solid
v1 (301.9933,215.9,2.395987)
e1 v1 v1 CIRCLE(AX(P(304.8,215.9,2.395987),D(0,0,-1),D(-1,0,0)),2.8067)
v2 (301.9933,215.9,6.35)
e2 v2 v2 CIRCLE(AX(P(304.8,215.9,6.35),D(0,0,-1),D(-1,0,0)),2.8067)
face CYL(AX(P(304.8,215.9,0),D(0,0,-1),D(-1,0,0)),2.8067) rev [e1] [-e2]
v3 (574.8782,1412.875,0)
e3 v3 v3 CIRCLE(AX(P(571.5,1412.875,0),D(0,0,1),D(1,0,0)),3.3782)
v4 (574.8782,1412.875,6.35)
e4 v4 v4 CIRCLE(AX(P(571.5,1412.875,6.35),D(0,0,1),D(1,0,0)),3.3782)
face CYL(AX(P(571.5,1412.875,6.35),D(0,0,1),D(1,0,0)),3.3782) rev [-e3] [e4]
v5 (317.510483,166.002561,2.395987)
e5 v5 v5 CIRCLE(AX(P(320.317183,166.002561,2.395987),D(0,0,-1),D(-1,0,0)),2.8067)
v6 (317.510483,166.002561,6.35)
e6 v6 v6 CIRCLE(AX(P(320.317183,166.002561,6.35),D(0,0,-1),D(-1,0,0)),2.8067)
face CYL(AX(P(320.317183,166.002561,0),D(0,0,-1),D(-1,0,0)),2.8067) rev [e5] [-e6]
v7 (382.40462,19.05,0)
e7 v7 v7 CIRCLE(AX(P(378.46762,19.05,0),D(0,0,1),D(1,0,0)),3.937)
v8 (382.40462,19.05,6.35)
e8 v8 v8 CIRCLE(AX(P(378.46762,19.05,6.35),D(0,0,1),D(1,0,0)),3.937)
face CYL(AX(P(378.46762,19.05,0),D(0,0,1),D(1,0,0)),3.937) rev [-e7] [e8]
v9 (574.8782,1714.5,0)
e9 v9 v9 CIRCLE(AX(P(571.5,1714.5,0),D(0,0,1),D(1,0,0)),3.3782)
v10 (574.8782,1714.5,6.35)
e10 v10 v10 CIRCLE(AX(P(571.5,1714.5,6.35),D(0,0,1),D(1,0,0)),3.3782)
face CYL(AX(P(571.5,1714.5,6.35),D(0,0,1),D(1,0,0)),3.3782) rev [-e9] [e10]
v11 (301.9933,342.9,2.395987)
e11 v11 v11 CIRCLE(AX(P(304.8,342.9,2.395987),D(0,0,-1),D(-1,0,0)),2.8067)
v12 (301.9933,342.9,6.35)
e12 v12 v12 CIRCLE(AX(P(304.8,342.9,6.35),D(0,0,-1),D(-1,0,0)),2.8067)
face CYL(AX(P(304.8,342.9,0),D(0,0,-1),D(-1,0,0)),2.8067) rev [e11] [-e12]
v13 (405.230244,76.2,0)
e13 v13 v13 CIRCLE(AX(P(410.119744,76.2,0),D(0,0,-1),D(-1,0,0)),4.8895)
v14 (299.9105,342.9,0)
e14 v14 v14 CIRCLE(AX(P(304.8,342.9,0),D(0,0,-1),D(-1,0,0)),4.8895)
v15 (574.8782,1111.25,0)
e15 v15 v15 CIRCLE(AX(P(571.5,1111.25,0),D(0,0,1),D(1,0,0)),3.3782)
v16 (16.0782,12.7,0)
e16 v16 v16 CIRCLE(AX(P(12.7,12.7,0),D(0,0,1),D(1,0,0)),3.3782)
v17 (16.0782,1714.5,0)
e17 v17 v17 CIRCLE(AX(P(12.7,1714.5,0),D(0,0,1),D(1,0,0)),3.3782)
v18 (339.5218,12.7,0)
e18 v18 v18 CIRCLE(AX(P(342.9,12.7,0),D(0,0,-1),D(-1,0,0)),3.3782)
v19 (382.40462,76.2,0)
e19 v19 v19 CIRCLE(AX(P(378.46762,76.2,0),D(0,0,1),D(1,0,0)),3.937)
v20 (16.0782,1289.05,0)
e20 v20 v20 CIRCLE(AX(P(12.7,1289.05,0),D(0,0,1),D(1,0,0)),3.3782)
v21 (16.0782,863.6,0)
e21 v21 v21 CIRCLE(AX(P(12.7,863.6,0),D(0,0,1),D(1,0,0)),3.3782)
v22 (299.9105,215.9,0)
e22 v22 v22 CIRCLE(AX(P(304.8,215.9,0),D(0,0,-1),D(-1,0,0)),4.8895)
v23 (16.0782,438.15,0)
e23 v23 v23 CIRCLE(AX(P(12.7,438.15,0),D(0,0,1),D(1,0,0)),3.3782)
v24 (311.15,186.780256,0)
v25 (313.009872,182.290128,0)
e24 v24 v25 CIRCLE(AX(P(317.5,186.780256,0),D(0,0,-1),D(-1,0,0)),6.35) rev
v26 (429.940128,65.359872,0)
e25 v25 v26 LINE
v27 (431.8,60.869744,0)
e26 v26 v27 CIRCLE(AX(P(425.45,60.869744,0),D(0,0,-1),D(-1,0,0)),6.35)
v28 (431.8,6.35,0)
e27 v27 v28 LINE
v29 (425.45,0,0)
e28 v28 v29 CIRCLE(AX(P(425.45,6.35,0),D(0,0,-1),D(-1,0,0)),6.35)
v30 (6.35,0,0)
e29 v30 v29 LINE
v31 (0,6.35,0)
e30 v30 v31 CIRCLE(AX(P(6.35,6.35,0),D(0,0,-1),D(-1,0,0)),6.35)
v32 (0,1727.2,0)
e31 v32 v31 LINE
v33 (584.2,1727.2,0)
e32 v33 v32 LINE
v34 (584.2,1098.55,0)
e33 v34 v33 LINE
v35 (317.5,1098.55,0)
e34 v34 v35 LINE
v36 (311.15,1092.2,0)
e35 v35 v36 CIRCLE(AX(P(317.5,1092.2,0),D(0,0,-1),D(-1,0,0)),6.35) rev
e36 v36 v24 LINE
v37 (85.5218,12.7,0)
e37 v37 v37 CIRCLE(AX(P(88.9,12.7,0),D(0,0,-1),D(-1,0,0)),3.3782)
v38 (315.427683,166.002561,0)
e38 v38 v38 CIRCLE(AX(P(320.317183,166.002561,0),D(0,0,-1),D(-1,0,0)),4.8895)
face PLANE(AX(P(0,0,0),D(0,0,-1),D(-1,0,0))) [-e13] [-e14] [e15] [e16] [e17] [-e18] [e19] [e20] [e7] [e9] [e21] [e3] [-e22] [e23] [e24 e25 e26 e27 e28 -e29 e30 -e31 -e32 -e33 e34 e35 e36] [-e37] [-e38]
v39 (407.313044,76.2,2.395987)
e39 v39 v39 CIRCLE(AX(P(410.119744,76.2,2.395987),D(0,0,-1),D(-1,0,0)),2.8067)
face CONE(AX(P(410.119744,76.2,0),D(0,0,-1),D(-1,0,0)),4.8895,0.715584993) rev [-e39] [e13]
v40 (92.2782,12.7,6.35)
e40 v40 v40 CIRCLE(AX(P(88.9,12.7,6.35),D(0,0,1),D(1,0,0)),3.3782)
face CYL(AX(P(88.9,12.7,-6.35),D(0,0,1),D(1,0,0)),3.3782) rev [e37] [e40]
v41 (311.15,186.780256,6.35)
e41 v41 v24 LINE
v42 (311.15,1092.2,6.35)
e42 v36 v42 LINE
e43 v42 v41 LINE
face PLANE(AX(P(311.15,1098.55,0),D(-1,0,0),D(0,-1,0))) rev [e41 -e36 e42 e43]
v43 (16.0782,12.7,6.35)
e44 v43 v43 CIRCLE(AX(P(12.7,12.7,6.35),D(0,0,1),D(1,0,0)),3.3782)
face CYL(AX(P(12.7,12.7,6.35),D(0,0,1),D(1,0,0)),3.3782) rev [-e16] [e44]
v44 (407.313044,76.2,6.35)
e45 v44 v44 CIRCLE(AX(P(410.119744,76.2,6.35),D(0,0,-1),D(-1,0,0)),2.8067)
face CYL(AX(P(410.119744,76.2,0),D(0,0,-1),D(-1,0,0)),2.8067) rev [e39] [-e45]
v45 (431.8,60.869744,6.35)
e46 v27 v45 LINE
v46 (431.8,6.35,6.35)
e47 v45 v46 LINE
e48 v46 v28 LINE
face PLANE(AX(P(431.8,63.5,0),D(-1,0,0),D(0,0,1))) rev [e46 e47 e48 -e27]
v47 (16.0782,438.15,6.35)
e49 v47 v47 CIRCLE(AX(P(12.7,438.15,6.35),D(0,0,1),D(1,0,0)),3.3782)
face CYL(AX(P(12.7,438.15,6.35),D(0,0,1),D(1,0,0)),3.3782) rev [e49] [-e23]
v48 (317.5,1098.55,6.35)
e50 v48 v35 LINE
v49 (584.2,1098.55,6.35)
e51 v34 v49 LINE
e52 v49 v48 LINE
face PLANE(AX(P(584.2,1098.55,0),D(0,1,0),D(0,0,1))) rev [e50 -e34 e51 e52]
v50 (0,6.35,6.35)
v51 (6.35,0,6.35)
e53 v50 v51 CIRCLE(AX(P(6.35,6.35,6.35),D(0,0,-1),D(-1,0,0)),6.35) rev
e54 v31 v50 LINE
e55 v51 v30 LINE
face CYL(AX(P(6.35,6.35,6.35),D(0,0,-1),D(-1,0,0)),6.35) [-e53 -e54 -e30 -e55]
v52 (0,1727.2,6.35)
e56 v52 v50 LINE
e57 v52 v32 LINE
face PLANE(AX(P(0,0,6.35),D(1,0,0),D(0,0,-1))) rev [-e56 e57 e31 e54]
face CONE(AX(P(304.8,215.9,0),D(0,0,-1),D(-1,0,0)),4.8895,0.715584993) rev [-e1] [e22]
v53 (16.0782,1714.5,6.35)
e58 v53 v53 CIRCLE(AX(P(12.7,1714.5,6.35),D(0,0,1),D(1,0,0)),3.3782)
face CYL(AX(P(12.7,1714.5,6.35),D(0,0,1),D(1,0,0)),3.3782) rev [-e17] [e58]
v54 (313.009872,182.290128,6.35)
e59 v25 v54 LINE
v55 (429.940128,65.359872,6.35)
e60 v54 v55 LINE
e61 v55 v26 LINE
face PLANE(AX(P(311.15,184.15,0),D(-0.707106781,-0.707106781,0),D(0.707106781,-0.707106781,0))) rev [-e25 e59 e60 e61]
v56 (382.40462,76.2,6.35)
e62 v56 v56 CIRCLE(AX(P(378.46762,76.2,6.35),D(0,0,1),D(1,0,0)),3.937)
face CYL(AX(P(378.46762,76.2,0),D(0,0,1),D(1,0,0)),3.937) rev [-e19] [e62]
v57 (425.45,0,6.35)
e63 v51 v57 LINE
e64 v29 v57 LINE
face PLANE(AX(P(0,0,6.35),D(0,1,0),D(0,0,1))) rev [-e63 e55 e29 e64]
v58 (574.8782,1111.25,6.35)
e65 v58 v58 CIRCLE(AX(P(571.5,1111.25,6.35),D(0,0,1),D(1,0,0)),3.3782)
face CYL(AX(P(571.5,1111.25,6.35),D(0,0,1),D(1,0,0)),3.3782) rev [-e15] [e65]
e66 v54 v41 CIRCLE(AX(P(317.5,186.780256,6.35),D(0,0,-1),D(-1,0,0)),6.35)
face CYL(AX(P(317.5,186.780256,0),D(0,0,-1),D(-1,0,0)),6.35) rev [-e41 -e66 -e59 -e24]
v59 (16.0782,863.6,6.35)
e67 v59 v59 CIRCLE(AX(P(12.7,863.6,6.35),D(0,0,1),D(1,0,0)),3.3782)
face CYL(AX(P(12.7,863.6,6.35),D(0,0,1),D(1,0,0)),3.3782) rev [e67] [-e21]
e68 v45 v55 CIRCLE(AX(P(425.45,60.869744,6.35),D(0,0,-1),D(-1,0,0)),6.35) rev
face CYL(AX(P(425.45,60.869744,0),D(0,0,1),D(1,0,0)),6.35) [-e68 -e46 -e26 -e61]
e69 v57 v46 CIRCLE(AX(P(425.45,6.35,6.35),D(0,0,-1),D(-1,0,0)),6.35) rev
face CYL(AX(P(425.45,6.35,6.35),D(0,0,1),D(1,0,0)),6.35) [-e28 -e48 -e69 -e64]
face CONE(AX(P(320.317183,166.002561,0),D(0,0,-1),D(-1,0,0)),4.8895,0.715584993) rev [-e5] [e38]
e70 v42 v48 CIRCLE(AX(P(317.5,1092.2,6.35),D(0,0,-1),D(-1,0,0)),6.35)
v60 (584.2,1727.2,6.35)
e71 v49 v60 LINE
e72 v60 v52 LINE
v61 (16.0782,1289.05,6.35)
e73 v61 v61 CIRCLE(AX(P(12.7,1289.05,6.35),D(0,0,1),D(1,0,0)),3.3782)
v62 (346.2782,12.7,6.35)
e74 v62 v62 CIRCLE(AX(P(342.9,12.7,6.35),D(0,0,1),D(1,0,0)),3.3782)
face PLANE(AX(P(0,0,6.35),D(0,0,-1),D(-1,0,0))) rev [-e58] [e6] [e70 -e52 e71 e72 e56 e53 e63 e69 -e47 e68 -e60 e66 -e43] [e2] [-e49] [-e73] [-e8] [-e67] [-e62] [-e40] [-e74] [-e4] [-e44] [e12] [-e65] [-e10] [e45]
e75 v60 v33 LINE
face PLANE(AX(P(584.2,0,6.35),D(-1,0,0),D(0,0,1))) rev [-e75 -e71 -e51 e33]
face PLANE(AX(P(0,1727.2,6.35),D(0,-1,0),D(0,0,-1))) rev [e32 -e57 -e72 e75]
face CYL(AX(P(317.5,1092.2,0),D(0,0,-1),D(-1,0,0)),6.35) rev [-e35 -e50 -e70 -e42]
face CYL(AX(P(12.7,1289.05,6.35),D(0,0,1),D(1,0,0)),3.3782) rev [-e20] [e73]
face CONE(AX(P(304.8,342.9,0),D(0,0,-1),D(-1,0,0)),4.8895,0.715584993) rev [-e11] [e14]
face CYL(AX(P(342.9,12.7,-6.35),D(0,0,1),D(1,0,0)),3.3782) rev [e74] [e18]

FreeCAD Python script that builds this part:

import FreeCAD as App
import Part
import Sketcher
from FreeCAD import Vector
Q = App.Units.Quantity


def edges_at(feature, points):
    """Names of the edges that pass closest to the given points."""
    edges = feature.Shape.Edges
    near = lambda p: min(range(len(edges)), key=lambda i: edges[i].distToShape(Part.Vertex(*p))[0])
    return sorted({f"Edge{near(p) + 1}" for p in points})


def add_polygon(sketch, points):
    """Adds a closed chain of lines whose ends are joined by coincident constraints."""
    first, n = sketch.GeometryCount, len(points)
    for a, b in zip(points, points[1:] + points[:1]):
        sketch.addGeometry(Part.LineSegment(App.Vector(*a, 0), App.Vector(*b, 0)), False)
    for i in range(n):
        sketch.addConstraint(Sketcher.Constraint("Coincident", first + i, 2, first + (i + 1) % n, 1))

doc = App.newDocument("Part")
body = doc.addObject("PartDesign::Body", "Body")

sketch1 = body.newObject("Sketcher::SketchObject", "Sketch")
sketch1.AttachmentSupport = (doc.getObject("XY_Plane"), [""])
sketch1.MapMode = "FlatFace"
add_polygon(sketch1, [(0, 1727.2), (0, 0), (584.2, 0), (584.2, 1727.2)])
sketch1.addConstraint(Sketcher.Constraint("Vertical", 0))
sketch1.addConstraint(Sketcher.Constraint("Horizontal", 1))
sketch1.addConstraint(Sketcher.Constraint("Vertical", 2))
sketch1.addConstraint(Sketcher.Constraint("Horizontal", 3))
sketch1.addConstraint(Sketcher.Constraint("Coincident", 0, 2, -1, 1))
sketch1.addConstraint(Sketcher.Constraint("DistanceX", 1, 1, 1, 2, Q("23 in")))
sketch1.addConstraint(Sketcher.Constraint("DistanceY", 0, 2, 0, 1, Q("68 in")))
pad1 = body.newObject("PartDesign::Pad", "Pad")
pad1.Profile = sketch1
pad1.Length = Q("0.25 in")

sketch2 = body.newObject("Sketcher::SketchObject", "Sketch001")
sketch2.AttachmentSupport = (doc.getObject("XY_Plane"), [""])
sketch2.MapMode = "FlatFace"
sketch2.AttachmentOffset = App.Placement(Vector(0, 0, 0.25 * 25.4), App.Rotation())
add_polygon(sketch2, [(584.2, 1098.55), (311.15, 1098.55), (311.15, 184.15), (431.8, 63.5), (431.8, 0), (584.2, 0)])
sketch2.addConstraint(Sketcher.Constraint("Horizontal", 0))
sketch2.addConstraint(Sketcher.Constraint("Vertical", 1))
sketch2.addConstraint(Sketcher.Constraint("Vertical", 3))
sketch2.addConstraint(Sketcher.Constraint("Horizontal", 4))
sketch2.addConstraint(Sketcher.Constraint("Vertical", 5))
sketch2.addConstraint(Sketcher.Constraint("PointOnObject", 3, 2, -1))
sketch2.addConstraint(Sketcher.Constraint("DistanceX", 4, 1, 4, 2, Q("6 in")))
sketch2.addConstraint(Sketcher.Constraint("DistanceY", 1, 2, 1, 1, Q("36 in")))
sketch2.addConstraint(Sketcher.Constraint("DistanceY", 3, 2, 3, 1, Q("2.5 in")))
sketch2.addConstraint(Sketcher.Constraint("DistanceX", -1, 1, 2, 2, Q("17 in")))
sketch2.addConstraint(Sketcher.Constraint("Angle", 2, Q("-45 deg")))
sketch2.addConstraint(Sketcher.Constraint("DistanceX", 0, 2, 0, 1, Q("10.75 in")))
pocket1 = body.newObject("PartDesign::Pocket", "Pocket")
pocket1.Profile = sketch2
pocket1.Type = "ThroughAll"

sketch3 = body.newObject("Sketcher::SketchObject", "Sketch002")
sketch3.AttachmentSupport = (doc.getObject("XY_Plane"), [""])
sketch3.MapMode = "FlatFace"
sketch3.AttachmentOffset = App.Placement(Vector(0, 0, 0.25 * 25.4), App.Rotation())
sketch3.addGeometry(Part.Circle(Vector(12.7, 1714.5, 0), Vector(0, 0, 1), 3.3782), False)
sketch3.addGeometry(Part.Circle(Vector(12.7, 1289.05, 0), Vector(0, 0, 1), 3.3782), False)
sketch3.addGeometry(Part.Circle(Vector(12.7, 863.6, 0), Vector(0, 0, 1), 3.3782), False)
sketch3.addGeometry(Part.Circle(Vector(12.7, 438.15, 0), Vector(0, 0, 1), 3.3782), False)
sketch3.addGeometry(Part.Circle(Vector(12.7, 12.7, 0), Vector(0, 0, 1), 3.3782), False)
sketch3.addGeometry(Part.Circle(Vector(571.5, 1111.25, 0), Vector(0, 0, 1), 3.3782), False)
sketch3.addGeometry(Part.Circle(Vector(571.5, 1412.875, 0), Vector(0, 0, 1), 3.3782), False)
sketch3.addGeometry(Part.Circle(Vector(571.5, 1714.5, 0), Vector(0, 0, 1), 3.3782), False)
sketch3.addConstraint(Sketcher.Constraint("Equal", 0, 1))
sketch3.addConstraint(Sketcher.Constraint("Equal", 1, 2))
sketch3.addConstraint(Sketcher.Constraint("Equal", 2, 3))
sketch3.addConstraint(Sketcher.Constraint("Equal", 3, 4))
sketch3.addConstraint(Sketcher.Constraint("Equal", 4, 5))
sketch3.addConstraint(Sketcher.Constraint("Equal", 5, 6))
sketch3.addConstraint(Sketcher.Constraint("Equal", 6, 7))
sketch3.addConstraint(Sketcher.Constraint("Horizontal", 0, 3, 7, 3))
sketch3.addConstraint(Sketcher.Constraint("Vertical", 0, 3, 1, 3))
sketch3.addConstraint(Sketcher.Constraint("Vertical", 1, 3, 2, 3))
sketch3.addConstraint(Sketcher.Constraint("Vertical", 2, 3, 3, 3))
sketch3.addConstraint(Sketcher.Constraint("Vertical", 3, 3, 4, 3))
sketch3.addConstraint(Sketcher.Constraint("Vertical", 5, 3, 6, 3))
sketch3.addConstraint(Sketcher.Constraint("Vertical", 6, 3, 7, 3))
sketch3.addConstraint(Sketcher.Constraint("Diameter", 0, Q("0.266 in")))
sketch3.addConstraint(Sketcher.Constraint("DistanceY", -1, 1, 2, 3, Q("34 in")))
sketch3.addConstraint(Sketcher.Constraint("DistanceY", 4, 3, 0, 3, Q("67 in")))
sketch3.addConstraint(Sketcher.Constraint("DistanceX", 1, 3, 5, 3, Q("22 in")))
sketch3.addConstraint(Sketcher.Constraint("DistanceY", 5, 3, 1, 3, Q("7 in")))
sketch3.addConstraint(Sketcher.Constraint("DistanceX", -1, 1, 0, 3, Q("0.5 in")))
sketch3.addConstraint(Sketcher.Constraint("DistanceY", -1, 1, 0, 3, Q("67.5 in")))
sketch3.addConstraint(Sketcher.Constraint("DistanceY", 3, 3, 1, 3, Q("33.5 in")))
sketch3.addConstraint(Sketcher.Constraint("DistanceY", -1, 1, 1, 3, Q("50.75 in")))
sketch3.addConstraint(Sketcher.Constraint("DistanceY", -1, 1, 6, 3, Q("55.625 in")))
doc.recompute()
hole = body.newObject("PartDesign::Hole", "Hole")
hole.Profile = sketch3
hole.ThreadType = "None"
hole.Diameter = Q("0.266 in")
hole.DepthType = "ThroughAll"
doc.recompute()

fillet = body.newObject("PartDesign::Fillet", "Fillet")
fillet.Base = (hole, edges_at(hole, [
    (431.8, 0, 3.175),
    (431.8, 63.5, 3.175),
    (311.15, 184.15, 3.175),
    (311.15, 1098.55, 3.175),
    (0, 0, 3.175),
]))
fillet.Radius = Q("0.25 in")

sketch4 = body.newObject("Sketcher::SketchObject", "Sketch003")
sketch4.AttachmentSupport = (doc.getObject("XY_Plane"), [""])
sketch4.MapMode = "FlatFace"
sketch4.AttachmentOffset = App.Placement(Vector(0, 0, 0.25 * 25.4), App.Rotation())
sketch4.addGeometry(Part.Circle(Vector(88.9, 12.7, 0), Vector(0, 0, 1), 3.3782), False)
sketch4.addGeometry(Part.Circle(Vector(342.9, 12.7, 0), Vector(0, 0, 1), 3.3782), False)
sketch4.addConstraint(Sketcher.Constraint("Equal", 0, 1))
sketch4.addConstraint(Sketcher.Constraint("Horizontal", 0, 3, 1, 3))
sketch4.addConstraint(Sketcher.Constraint("Diameter", 0, Q("0.266 in")))
sketch4.addConstraint(Sketcher.Constraint("DistanceX", 0, 3, 1, 3, Q("10 in")))
sketch4.addConstraint(Sketcher.Constraint("DistanceX", -1, 1, 0, 3, Q("3.5 in")))
sketch4.addConstraint(Sketcher.Constraint("DistanceY", -1, 1, 0, 3, Q("0.5 in")))
pocket2 = body.newObject("PartDesign::Pocket", "Pocket001")
pocket2.Profile = sketch4
pocket2.Length = Q("0.5 in")

sketch5 = body.newObject("Sketcher::SketchObject", "Sketch004")
sketch5.AttachmentSupport = (doc.getObject("XY_Plane"), [""])
sketch5.MapMode = "FlatFace"
sketch5.addGeometry(Part.Circle(Vector(304.8, 342.9, 0), Vector(0, 0, 1), 2.8067), False)
sketch5.addGeometry(Part.Circle(Vector(304.8, 215.9, 0), Vector(0, 0, 1), 2.8067), False)
sketch5.addGeometry(Part.Circle(Vector(320.317183, 166.002561, 0), Vector(0, 0, 1), 2.8067), False)
sketch5.addGeometry(Part.Circle(Vector(410.119744, 76.2, 0), Vector(0, 0, 1), 2.8067), False)
sketch5.addConstraint(Sketcher.Constraint("Equal", 0, 1))
sketch5.addConstraint(Sketcher.Constraint("Equal", 1, 2))
sketch5.addConstraint(Sketcher.Constraint("Equal", 2, 3))
sketch5.addConstraint(Sketcher.Constraint("Vertical", 0, 3, 1, 3))
sketch5.addConstraint(Sketcher.Constraint("Diameter", 0, Q("0.221 in")))
sketch5.addConstraint(Sketcher.Constraint("DistanceX", -1, 1, 0, 3, Q("12 in")))
sketch5.addConstraint(Sketcher.Constraint("DistanceY", -1, 1, 3, 3, Q("3 in")))
sketch5.addConstraint(Sketcher.Constraint("DistanceY", 1, 3, 0, 3, Q("5 in")))
sketch5.addConstraint(Sketcher.Constraint("DistanceY", -1, 1, 0, 3, Q("13.5 in")))
sketch5.addConstraint(Sketcher.Constraint("DistanceY", -1, 1, 2, 3, Q("166.002561 mm")))
sketch5.addConstraint(Sketcher.Constraint("DistanceX", 2, 3, 3, 3, Q("89.802561 mm")))
sketch5.addConstraint(Sketcher.Constraint("DistanceX", -1, 1, 2, 3, Q("320.317183 mm")))
doc.recompute()
hole2 = body.newObject("PartDesign::Hole", "Hole001")
hole2.Profile = sketch5
hole2.ThreadType = "None"
hole2.Diameter = Q("0.221 in")
hole2.DepthType = "ThroughAll"
hole2.HoleCutType = "Countersink"
hole2.HoleCutDiameter = Q("0.385 in")
hole2.HoleCutCountersinkAngle = 82
hole2.Reversed = True

sketch6 = body.newObject("Sketcher::SketchObject", "Sketch005")
sketch6.AttachmentSupport = (doc.getObject("XY_Plane"), [""])
sketch6.MapMode = "FlatFace"
sketch6.AttachmentOffset = App.Placement(Vector(0, 0, 0.25 * 25.4), App.Rotation())
sketch6.addGeometry(Part.Circle(Vector(378.46762, 19.05, 0), Vector(0, 0, 1), 3.937), False)
sketch6.addGeometry(Part.Circle(Vector(378.46762, 76.2, 0), Vector(0, 0, 1), 3.937), False)
sketch6.addConstraint(Sketcher.Constraint("Equal", 0, 1))
sketch6.addConstraint(Sketcher.Constraint("Vertical", 0, 3, 1, 3))
sketch6.addConstraint(Sketcher.Constraint("Diameter", 0, Q("0.31 in")))
sketch6.addConstraint(Sketcher.Constraint("DistanceY", -1, 1, 1, 3, Q("3 in")))
sketch6.addConstraint(Sketcher.Constraint("DistanceY", -1, 1, 0, 3, Q("0.75 in")))
sketch6.addConstraint(Sketcher.Constraint("DistanceX", -1, 1, 0, 3, Q("14.9003 in")))
pocket3 = body.newObject("PartDesign::Pocket", "Pocket002")
pocket3.Profile = sketch6
pocket3.Type = "ThroughAll"

doc.recompute()
